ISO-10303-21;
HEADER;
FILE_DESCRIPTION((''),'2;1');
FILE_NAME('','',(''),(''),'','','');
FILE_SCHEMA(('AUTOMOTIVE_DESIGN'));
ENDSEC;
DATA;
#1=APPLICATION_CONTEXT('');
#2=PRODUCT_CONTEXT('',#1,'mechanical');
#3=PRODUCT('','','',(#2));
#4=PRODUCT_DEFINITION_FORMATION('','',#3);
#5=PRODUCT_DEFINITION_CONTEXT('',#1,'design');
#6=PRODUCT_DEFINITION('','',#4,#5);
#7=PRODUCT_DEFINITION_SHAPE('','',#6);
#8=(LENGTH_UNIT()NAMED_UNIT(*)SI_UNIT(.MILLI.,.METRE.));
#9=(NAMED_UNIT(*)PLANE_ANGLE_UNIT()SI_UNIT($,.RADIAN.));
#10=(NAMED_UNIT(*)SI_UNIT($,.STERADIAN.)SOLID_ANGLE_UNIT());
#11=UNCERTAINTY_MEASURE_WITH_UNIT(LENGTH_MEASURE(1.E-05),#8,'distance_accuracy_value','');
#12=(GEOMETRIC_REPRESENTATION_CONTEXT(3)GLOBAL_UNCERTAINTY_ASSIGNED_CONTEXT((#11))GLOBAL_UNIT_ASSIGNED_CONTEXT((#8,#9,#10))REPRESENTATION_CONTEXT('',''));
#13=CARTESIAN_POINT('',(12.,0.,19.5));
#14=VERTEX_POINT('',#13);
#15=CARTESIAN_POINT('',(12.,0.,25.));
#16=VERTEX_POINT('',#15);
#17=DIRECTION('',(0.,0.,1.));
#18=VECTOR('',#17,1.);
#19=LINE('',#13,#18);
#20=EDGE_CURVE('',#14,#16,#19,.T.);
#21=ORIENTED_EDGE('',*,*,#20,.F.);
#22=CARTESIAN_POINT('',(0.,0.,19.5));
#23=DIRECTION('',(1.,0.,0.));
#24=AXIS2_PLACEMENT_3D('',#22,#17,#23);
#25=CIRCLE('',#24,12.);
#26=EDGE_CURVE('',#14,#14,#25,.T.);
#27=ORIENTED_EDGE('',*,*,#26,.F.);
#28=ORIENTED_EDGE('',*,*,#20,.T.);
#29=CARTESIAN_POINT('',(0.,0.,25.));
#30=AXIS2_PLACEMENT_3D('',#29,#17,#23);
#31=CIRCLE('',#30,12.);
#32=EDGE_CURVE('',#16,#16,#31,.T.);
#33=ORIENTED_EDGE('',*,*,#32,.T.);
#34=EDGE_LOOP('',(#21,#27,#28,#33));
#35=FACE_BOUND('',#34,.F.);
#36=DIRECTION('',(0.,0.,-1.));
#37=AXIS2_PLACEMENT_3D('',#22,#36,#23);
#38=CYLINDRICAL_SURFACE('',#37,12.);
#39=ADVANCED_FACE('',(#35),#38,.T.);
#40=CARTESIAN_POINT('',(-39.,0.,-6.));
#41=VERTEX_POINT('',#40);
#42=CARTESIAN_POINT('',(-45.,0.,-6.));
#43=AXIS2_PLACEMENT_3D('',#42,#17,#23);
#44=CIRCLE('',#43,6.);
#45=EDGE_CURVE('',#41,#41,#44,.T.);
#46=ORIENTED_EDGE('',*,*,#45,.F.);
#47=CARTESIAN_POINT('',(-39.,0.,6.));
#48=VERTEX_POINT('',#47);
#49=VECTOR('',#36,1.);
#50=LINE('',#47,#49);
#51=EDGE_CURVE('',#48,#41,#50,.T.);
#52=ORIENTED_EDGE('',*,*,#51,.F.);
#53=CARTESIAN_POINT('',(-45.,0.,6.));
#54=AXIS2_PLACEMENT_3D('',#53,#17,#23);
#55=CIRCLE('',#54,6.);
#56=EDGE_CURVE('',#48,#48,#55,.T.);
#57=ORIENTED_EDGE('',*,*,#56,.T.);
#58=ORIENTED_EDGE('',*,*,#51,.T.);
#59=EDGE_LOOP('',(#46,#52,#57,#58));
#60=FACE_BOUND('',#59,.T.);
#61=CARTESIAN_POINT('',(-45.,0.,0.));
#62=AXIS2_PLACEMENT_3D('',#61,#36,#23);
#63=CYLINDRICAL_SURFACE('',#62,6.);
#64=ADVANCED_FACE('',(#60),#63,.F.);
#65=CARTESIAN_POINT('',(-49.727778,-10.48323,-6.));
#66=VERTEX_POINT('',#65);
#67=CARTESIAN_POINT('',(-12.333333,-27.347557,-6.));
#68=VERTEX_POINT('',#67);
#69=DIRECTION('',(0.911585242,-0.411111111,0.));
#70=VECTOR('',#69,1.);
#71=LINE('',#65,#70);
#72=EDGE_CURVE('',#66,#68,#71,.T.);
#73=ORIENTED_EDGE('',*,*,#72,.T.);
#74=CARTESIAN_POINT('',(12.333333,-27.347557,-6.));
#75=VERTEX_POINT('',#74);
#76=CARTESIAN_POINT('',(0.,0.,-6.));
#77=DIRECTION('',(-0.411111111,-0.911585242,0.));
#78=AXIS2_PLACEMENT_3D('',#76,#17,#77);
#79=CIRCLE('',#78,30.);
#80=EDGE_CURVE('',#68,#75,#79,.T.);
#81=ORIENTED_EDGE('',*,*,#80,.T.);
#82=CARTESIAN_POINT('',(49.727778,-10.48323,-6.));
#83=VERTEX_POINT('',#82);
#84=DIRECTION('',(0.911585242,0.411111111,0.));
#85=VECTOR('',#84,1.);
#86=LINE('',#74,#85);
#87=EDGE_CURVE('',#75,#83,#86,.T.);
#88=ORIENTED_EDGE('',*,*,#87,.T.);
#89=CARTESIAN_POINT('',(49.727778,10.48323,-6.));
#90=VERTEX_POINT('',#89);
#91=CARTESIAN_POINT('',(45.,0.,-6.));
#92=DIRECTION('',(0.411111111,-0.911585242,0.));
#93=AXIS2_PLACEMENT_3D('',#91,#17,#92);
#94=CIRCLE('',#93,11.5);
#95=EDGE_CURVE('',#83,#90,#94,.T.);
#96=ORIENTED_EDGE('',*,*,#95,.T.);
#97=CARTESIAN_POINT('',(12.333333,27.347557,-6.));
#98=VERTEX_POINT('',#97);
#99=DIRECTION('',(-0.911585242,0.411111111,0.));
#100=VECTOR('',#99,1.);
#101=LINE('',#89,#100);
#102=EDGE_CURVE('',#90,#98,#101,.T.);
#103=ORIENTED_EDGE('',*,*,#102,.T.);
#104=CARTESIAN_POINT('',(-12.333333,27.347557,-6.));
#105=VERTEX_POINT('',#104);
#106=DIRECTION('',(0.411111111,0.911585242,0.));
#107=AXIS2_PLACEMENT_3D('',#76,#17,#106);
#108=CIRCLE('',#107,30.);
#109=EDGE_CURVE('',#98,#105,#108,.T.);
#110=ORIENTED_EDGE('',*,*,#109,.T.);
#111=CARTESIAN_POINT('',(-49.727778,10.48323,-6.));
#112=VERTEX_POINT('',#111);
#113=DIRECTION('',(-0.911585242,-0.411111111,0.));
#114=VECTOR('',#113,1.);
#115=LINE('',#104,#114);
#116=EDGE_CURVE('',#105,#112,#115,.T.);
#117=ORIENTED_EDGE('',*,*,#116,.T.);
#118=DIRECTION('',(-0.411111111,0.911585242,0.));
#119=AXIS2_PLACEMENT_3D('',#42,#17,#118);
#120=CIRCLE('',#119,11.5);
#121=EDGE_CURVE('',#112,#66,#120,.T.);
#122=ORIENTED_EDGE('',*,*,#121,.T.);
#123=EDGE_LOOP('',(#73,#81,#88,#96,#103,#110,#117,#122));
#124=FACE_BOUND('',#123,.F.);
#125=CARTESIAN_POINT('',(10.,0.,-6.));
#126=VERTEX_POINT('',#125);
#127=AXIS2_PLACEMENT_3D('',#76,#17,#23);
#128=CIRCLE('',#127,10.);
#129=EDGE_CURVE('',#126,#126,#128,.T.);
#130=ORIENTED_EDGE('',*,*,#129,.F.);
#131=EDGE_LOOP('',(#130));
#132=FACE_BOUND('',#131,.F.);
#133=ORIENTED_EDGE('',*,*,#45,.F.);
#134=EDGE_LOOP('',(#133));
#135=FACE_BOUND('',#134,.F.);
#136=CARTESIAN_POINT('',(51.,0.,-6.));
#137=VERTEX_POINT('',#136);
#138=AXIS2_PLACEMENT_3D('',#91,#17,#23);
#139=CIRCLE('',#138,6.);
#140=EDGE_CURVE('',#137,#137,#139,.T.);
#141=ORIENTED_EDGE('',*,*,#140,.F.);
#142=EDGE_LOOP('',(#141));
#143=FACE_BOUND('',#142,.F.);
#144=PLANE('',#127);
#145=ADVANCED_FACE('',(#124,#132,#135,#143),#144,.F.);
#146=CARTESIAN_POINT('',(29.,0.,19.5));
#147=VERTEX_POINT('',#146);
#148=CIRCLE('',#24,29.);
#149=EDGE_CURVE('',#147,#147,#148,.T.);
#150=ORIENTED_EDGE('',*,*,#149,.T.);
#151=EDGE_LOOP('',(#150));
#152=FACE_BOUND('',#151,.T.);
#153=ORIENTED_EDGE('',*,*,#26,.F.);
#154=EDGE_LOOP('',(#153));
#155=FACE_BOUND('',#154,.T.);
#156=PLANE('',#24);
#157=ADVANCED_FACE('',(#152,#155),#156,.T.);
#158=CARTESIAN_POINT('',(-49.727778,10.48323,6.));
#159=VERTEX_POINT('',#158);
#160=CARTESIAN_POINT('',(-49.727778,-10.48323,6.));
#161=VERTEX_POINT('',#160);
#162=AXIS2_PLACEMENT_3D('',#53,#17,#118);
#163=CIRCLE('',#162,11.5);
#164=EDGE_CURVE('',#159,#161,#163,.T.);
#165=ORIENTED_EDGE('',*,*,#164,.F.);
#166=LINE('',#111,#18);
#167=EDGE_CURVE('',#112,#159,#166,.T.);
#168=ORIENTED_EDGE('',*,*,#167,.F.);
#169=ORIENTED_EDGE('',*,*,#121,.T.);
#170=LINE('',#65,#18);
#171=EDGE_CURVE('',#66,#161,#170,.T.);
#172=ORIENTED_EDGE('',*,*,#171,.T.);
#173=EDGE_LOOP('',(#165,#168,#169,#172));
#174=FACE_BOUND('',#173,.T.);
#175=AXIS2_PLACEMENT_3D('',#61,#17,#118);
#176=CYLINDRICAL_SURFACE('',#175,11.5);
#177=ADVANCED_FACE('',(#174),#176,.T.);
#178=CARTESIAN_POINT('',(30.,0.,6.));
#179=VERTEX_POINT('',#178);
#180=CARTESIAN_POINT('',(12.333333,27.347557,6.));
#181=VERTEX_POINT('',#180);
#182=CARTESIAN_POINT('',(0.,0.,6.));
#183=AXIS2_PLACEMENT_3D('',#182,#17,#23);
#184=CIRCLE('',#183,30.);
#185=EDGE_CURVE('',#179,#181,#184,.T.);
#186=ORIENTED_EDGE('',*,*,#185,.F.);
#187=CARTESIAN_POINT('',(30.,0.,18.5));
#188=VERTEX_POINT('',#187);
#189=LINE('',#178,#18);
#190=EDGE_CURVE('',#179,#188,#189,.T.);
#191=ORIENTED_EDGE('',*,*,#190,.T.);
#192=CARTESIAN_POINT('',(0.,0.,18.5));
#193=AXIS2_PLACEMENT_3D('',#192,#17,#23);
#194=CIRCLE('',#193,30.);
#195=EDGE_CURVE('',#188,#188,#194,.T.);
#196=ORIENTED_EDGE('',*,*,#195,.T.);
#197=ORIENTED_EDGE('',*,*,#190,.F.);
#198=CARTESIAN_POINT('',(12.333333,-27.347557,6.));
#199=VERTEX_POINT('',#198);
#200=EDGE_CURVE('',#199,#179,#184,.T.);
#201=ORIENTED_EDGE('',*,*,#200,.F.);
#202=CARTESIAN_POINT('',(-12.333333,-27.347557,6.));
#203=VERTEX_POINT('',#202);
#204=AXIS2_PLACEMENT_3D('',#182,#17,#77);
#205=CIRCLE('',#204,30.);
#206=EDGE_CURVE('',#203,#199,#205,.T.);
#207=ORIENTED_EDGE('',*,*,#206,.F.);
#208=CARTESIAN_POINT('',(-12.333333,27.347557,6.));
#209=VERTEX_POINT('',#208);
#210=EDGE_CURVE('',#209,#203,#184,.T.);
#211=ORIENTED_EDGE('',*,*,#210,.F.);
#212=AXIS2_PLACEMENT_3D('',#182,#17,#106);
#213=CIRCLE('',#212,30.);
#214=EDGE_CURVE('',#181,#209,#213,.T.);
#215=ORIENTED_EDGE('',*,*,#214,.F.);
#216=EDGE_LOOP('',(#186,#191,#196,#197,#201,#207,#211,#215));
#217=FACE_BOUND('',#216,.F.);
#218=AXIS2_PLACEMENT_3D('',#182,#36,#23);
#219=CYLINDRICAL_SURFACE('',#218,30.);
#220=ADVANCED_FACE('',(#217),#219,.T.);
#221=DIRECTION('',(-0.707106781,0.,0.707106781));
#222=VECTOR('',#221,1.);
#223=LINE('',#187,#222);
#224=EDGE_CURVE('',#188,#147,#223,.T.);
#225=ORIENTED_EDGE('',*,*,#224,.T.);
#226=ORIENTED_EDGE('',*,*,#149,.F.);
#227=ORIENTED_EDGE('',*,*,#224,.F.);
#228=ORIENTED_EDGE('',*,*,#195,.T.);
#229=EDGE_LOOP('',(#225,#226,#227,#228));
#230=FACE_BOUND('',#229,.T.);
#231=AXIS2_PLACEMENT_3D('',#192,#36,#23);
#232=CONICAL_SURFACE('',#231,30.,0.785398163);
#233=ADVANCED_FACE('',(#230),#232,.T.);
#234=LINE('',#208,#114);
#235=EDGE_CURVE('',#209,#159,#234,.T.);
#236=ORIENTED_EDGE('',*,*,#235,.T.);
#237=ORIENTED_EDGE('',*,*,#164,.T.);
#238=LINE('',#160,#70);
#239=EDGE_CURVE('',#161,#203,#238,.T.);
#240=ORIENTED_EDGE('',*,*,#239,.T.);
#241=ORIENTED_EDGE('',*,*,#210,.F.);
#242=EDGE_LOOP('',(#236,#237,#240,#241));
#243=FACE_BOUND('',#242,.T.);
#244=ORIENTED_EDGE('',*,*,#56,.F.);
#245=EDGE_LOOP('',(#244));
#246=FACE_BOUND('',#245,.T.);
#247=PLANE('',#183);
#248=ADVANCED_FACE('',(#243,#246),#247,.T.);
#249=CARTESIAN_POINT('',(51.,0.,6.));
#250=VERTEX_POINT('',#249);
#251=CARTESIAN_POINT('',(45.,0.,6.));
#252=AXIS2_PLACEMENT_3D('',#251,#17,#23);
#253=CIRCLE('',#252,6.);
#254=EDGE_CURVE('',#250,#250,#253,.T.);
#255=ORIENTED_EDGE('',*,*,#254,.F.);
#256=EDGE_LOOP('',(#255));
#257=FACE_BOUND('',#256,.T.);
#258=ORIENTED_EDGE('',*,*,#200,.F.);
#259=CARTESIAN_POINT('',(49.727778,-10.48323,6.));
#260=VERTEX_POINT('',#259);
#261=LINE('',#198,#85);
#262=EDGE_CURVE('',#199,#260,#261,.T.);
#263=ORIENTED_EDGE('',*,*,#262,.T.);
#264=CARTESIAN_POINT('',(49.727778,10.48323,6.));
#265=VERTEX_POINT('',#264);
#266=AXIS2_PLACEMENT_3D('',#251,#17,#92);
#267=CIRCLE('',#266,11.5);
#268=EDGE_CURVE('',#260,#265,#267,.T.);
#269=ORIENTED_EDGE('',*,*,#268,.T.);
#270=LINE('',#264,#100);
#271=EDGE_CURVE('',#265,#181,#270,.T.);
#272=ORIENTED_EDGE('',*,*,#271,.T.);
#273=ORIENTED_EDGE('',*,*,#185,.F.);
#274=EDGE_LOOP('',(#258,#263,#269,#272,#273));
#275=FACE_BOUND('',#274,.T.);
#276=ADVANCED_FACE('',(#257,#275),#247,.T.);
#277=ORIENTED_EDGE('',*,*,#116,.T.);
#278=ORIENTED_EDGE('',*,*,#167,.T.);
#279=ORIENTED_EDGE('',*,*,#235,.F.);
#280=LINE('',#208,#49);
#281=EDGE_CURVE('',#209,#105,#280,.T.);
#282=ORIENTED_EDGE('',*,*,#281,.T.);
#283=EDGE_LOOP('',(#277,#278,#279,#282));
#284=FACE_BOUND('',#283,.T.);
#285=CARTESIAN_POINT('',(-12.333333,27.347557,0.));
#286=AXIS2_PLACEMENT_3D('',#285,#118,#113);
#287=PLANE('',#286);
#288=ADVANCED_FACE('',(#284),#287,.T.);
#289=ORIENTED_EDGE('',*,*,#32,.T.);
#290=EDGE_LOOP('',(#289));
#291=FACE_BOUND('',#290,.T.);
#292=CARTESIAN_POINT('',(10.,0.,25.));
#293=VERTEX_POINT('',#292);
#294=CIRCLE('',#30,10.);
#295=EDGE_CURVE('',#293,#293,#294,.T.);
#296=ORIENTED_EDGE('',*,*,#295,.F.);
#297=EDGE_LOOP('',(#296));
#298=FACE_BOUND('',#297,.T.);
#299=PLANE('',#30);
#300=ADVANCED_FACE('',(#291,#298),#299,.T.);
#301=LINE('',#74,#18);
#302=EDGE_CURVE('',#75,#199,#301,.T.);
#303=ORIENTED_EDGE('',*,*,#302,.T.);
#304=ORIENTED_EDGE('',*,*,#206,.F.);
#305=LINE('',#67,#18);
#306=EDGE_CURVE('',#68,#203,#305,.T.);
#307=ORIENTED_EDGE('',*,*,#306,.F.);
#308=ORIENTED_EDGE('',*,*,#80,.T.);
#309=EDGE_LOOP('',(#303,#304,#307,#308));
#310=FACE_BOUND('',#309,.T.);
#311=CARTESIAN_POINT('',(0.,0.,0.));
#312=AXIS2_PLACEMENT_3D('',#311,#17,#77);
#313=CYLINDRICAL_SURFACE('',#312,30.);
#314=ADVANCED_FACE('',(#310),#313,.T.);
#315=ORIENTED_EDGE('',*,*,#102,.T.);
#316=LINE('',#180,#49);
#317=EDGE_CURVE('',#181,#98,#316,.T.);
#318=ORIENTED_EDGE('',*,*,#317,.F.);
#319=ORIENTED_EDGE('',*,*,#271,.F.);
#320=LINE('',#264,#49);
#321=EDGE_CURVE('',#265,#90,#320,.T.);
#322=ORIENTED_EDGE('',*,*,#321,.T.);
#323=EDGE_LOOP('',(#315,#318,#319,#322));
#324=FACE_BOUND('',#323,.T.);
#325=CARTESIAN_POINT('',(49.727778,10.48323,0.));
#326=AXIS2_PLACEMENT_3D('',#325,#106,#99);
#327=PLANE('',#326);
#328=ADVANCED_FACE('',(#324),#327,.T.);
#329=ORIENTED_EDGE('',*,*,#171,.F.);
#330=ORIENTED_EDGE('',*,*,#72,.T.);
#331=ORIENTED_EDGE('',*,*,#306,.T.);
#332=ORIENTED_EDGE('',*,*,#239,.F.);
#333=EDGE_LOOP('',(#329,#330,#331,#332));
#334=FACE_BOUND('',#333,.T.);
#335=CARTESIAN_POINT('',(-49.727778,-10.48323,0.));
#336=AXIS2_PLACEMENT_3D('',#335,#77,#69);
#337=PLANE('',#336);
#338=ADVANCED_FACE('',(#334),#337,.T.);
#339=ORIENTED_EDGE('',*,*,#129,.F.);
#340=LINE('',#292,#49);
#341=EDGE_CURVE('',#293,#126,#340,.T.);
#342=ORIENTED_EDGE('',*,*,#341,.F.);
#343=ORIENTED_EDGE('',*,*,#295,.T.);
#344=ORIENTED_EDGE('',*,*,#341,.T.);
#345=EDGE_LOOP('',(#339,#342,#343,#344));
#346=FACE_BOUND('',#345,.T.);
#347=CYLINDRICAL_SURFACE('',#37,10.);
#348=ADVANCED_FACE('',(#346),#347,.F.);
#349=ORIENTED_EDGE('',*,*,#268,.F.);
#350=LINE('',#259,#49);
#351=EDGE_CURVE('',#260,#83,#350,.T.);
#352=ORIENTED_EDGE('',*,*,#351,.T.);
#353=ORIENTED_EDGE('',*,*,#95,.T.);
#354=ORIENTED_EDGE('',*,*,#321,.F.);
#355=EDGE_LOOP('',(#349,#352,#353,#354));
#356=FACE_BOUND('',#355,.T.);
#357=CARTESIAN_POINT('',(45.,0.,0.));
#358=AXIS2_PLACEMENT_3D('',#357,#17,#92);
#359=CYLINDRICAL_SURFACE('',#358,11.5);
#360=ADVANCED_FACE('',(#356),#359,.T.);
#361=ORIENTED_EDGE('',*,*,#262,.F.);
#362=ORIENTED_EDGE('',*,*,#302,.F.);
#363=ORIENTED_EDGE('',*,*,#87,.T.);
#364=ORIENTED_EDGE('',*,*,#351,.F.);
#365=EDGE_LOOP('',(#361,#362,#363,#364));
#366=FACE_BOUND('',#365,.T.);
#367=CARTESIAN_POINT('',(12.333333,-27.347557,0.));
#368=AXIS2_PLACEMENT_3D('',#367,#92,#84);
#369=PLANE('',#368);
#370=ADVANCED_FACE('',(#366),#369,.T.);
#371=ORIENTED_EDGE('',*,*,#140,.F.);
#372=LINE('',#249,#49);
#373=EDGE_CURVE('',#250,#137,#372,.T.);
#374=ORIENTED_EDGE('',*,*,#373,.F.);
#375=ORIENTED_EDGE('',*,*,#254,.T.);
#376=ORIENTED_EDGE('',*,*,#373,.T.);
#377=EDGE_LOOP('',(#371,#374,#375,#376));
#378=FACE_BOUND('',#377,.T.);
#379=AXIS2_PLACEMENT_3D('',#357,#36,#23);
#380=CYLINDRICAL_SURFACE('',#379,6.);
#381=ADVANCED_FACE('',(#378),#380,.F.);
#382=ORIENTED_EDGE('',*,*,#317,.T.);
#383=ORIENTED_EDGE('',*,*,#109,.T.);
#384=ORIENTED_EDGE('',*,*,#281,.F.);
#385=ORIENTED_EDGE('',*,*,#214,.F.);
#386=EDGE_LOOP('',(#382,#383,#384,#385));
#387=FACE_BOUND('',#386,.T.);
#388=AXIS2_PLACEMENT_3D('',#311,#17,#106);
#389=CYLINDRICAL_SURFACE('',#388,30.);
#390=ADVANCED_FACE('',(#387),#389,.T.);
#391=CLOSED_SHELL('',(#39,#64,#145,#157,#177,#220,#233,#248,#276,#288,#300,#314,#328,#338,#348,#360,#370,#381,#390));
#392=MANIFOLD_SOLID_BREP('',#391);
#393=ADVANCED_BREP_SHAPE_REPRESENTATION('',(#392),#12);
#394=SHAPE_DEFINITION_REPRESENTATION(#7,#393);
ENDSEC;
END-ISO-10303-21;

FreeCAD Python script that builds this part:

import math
import FreeCAD as App
import Part
import Sketcher


def edges_at(feature, points):
    """Names of the edges that pass closest to the given points."""
    edges = feature.Shape.Edges
    near = lambda p: min(range(len(edges)), key=lambda i: edges[i].distToShape(Part.Vertex(*p))[0])
    return sorted({f"Edge{near(p) + 1}" for p in points})

doc = App.newDocument("Part")
body = doc.addObject("PartDesign::Body", "Body")

# Sketch on XY plane
sketch1 = body.newObject("Sketcher::SketchObject", "Sketch")
sketch1.AttachmentSupport = (doc.getObject("XY_Plane"), [""])
sketch1.MapMode = "FlatFace"
sketch1.addGeometry([
    Part.LineSegment(App.Vector(-12, 27, 0), App.Vector(-50, 10, 0)),  # 0
    Part.ArcOfCircle(Part.Circle(App.Vector(-45, 0, 0), App.Vector(0, 0, 1), 12), math.radians(114), math.radians(246)),  # 1
    Part.LineSegment(App.Vector(-50, -10, 0), App.Vector(-12, -27, 0)),  # 2
    Part.ArcOfCircle(Part.Circle(App.Vector(0, 0, 0), App.Vector(0, 0, 1), 30), math.radians(-114), math.radians(-66)),  # 3
    Part.LineSegment(App.Vector(12, -27, 0), App.Vector(50, -10, 0)),  # 4
    Part.ArcOfCircle(Part.Circle(App.Vector(45, 0, 0), App.Vector(0, 0, 1), 12), math.radians(-66), math.radians(66)),  # 5
    Part.LineSegment(App.Vector(50, 10, 0), App.Vector(12, 27, 0)),  # 6
    Part.ArcOfCircle(Part.Circle(App.Vector(0, 0, 0), App.Vector(0, 0, 1), 30), math.radians(66), math.radians(114)),  # 7
    Part.Circle(App.Vector(-45, 0, 0), App.Vector(0, 0, 1), 6),  # 8
    Part.Circle(App.Vector(0, 0, 0), App.Vector(0, 0, 1), 10),  # 9
    Part.Circle(App.Vector(45, 0, 0), App.Vector(0, 0, 1), 6),  # 10
], False)
sketch1.addConstraint([
    Sketcher.Constraint("Tangent", 0, 2, 1, 1),
    Sketcher.Constraint("Tangent", 1, 2, 2, 1),
    Sketcher.Constraint("Tangent", 2, 2, 3, 1),
    Sketcher.Constraint("Tangent", 3, 2, 4, 1),
    Sketcher.Constraint("Tangent", 4, 2, 5, 1),
    Sketcher.Constraint("Tangent", 5, 2, 6, 1),
    Sketcher.Constraint("Tangent", 6, 2, 7, 1),
    Sketcher.Constraint("Tangent", 7, 2, 0, 1),
    Sketcher.Constraint("Coincident", 3, 3, -1, 1),
    Sketcher.Constraint("Coincident", 7, 3, -1, 1),
    Sketcher.Constraint("Coincident", 9, 3, -1, 1),
    Sketcher.Constraint("Coincident", 8, 3, 1, 3),
    Sketcher.Constraint("Coincident", 10, 3, 5, 3),
    Sketcher.Constraint("Equal", 1, 5),
    Sketcher.Constraint("Equal", 3, 7),
    Sketcher.Constraint("Equal", 8, 10),
    Sketcher.Constraint("Symmetric", 1, 3, 5, 3, -1, 1),
    Sketcher.Constraint("PointOnObject", 1, 3, -1),
    Sketcher.Constraint("Diameter", 8, 12.0),
    Sketcher.Constraint("Diameter", 9, 20.0),
    Sketcher.Constraint("Radius", 3, 30.0),
    Sketcher.Constraint("Radius", 1, 11.5),
    Sketcher.Constraint("DistanceX", 1, 3, -1, 1, 45.0),
])
pad1 = body.newObject("PartDesign::Pad", "Pad")
pad1.Profile = sketch1
pad1.Length = 12
pad1.Midplane = True

# Sketch on XY plane
sketch2 = body.newObject("Sketcher::SketchObject", "Sketch001")
sketch2.AttachmentSupport = (doc.getObject("XY_Plane"), [""])
sketch2.MapMode = "FlatFace"
sketch2.AttachmentOffset = App.Placement(App.Vector(0, 0, 6), App.Rotation())
sketch2.addGeometry([
    Part.Circle(App.Vector(0, 0, 0), App.Vector(0, 0, 1), 30),
    Part.Circle(App.Vector(0, 0, 0), App.Vector(0, 0, 1), 10),
], False)
sketch2.addConstraint([
    Sketcher.Constraint("Coincident", 0, 3, -1, 1),
    Sketcher.Constraint("Coincident", 1, 3, -1, 1),
    Sketcher.Constraint("Diameter", 0, 60.0),
    Sketcher.Constraint("Diameter", 1, 20.0),
])
pad2 = body.newObject("PartDesign::Pad", "Pad001")
pad2.Profile = sketch2
pad2.Length = 13.5

# Sketch on XY plane
sketch3 = body.newObject("Sketcher::SketchObject", "Sketch002")
sketch3.AttachmentSupport = (doc.getObject("XY_Plane"), [""])
sketch3.MapMode = "FlatFace"
sketch3.AttachmentOffset = App.Placement(App.Vector(0, 0, 19.5), App.Rotation())
sketch3.addGeometry([
    Part.Circle(App.Vector(0, 0, 0), App.Vector(0, 0, 1), 12),
    Part.Circle(App.Vector(0, 0, 0), App.Vector(0, 0, 1), 10),
], False)
sketch3.addConstraint([
    Sketcher.Constraint("Coincident", 0, 3, -1, 1),
    Sketcher.Constraint("Coincident", 1, 3, -1, 1),
    Sketcher.Constraint("Diameter", 0, 24.0),
    Sketcher.Constraint("Diameter", 1, 20.0),
])
pad3 = body.newObject("PartDesign::Pad", "Pad002")
pad3.Profile = sketch3
pad3.Length = 5.5
doc.recompute()

chamfer = body.newObject("PartDesign::Chamfer", "Chamfer")
chamfer.Base = (pad3, edges_at(pad3, [(-30, 0, 19.5)]))
chamfer.Size = 1

doc.recompute()
